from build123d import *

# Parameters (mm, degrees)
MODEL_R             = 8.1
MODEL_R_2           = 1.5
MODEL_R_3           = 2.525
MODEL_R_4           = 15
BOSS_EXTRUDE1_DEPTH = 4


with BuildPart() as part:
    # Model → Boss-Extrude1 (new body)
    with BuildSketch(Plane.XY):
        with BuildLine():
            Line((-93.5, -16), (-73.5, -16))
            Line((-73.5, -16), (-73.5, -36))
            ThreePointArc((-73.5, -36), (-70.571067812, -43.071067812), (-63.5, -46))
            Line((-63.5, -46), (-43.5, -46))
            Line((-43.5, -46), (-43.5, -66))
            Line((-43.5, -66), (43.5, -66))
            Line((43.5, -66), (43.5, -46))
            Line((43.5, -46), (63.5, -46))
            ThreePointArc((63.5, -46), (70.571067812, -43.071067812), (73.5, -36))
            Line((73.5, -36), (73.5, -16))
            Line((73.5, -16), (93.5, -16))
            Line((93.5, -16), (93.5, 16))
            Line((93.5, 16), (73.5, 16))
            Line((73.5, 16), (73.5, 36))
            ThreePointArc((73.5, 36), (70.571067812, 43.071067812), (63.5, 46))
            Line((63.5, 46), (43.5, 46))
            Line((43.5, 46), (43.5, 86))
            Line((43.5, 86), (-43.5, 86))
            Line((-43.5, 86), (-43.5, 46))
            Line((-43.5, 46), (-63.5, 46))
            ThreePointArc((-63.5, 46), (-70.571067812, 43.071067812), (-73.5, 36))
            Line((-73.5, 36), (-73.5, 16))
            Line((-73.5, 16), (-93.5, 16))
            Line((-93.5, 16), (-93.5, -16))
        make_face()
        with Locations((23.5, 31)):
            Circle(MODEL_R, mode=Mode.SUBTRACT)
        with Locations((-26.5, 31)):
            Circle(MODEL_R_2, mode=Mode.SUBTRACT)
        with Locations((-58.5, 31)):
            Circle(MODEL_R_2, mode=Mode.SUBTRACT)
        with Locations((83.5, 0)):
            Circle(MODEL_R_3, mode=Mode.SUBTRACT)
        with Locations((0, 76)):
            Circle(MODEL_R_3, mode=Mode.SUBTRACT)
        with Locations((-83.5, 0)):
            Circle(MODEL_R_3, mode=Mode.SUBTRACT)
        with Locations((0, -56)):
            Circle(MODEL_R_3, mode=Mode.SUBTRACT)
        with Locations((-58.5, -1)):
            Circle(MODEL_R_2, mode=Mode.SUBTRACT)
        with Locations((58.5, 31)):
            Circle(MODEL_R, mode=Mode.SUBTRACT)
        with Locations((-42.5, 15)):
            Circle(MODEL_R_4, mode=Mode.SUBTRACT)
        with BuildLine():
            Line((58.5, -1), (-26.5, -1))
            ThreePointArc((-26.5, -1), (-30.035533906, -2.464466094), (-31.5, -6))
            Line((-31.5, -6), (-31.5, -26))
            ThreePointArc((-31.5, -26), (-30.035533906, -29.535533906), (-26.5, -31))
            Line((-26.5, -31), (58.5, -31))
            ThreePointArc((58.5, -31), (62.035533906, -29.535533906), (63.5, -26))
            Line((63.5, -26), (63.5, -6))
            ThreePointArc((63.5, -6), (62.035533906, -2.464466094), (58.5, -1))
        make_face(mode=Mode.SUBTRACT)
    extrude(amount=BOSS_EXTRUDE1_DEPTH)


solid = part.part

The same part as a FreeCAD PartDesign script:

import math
import FreeCAD as App
import Part
import Sketcher

V = App.Vector
Q = App.Units.Quantity

doc = App.newDocument("Part")
params = doc.addObject("Spreadsheet::Sheet", "Params")
for row, (alias, value) in enumerate([
    ("sketch1_diameter", "3 mm"),
    ("sketch1_diameter2", "30 mm"),
    ("sketch1_radius", "10 mm"),
    ("sketch1_radius2", "5 mm"),
    ("sketch1_diameter3", "16.2 mm"),
    ("pad1_length", "4 mm"),
], start=1):
    params.set(f"A{row}", alias)
    params.set(f"B{row}", "=" + value)
    params.setAlias(f"B{row}", alias)

body = doc.addObject("PartDesign::Body", "Body")

sketch1 = doc.addObject("Sketcher::SketchObject", "Sketch")
body.addObject(sketch1)
sketch1.AttachmentSupport = (doc.XY_Plane, [""])
sketch1.MapMode = "FlatFace"
sketch1.addGeometry(Part.LineSegment(V(-93.5, -16, 0), V(-73.5, -16, 0)), False)
sketch1.addGeometry(Part.LineSegment(V(-73.5, -16, 0), V(-73.5, -36, 0)), False)
sketch1.addGeometry(Part.ArcOfCircle(Part.Circle(V(-63.5, -36, 0), V(0, 0, 1), 10), math.radians(180), math.radians(270)), False)
sketch1.addGeometry(Part.LineSegment(V(-63.5, -46, 0), V(-43.5, -46, 0)), False)
sketch1.addGeometry(Part.LineSegment(V(-43.5, -46, 0), V(-43.5, -66, 0)), False)
sketch1.addGeometry(Part.LineSegment(V(-43.5, -66, 0), V(43.5, -66, 0)), False)
sketch1.addGeometry(Part.LineSegment(V(43.5, -66, 0), V(43.5, -46, 0)), False)
sketch1.addGeometry(Part.LineSegment(V(43.5, -46, 0), V(63.5, -46, 0)), False)
sketch1.addGeometry(Part.ArcOfCircle(Part.Circle(V(63.5, -36, 0), V(0, 0, 1), 10), math.radians(-90), math.radians(0)), False)
sketch1.addGeometry(Part.LineSegment(V(73.5, -36, 0), V(73.5, -16, 0)), False)
sketch1.addGeometry(Part.LineSegment(V(73.5, -16, 0), V(93.5, -16, 0)), False)
sketch1.addGeometry(Part.LineSegment(V(93.5, -16, 0), V(93.5, 16, 0)), False)
sketch1.addGeometry(Part.LineSegment(V(93.5, 16, 0), V(73.5, 16, 0)), False)
sketch1.addGeometry(Part.LineSegment(V(73.5, 16, 0), V(73.5, 36, 0)), False)
sketch1.addGeometry(Part.ArcOfCircle(Part.Circle(V(63.5, 36, 0), V(0, 0, 1), 10), math.radians(0), math.radians(90)), False)
sketch1.addGeometry(Part.LineSegment(V(63.5, 46, 0), V(43.5, 46, 0)), False)
sketch1.addGeometry(Part.LineSegment(V(43.5, 46, 0), V(43.5, 86, 0)), False)
sketch1.addGeometry(Part.LineSegment(V(43.5, 86, 0), V(-43.5, 86, 0)), False)
sketch1.addGeometry(Part.LineSegment(V(-43.5, 86, 0), V(-43.5, 46, 0)), False)
sketch1.addGeometry(Part.LineSegment(V(-43.5, 46, 0), V(-63.5, 46, 0)), False)
sketch1.addGeometry(Part.ArcOfCircle(Part.Circle(V(-63.5, 36, 0), V(0, 0, 1), 10), math.radians(90), math.radians(180)), False)
sketch1.addGeometry(Part.LineSegment(V(-73.5, 36, 0), V(-73.5, 16, 0)), False)
sketch1.addGeometry(Part.LineSegment(V(-73.5, 16, 0), V(-93.5, 16, 0)), False)
sketch1.addGeometry(Part.LineSegment(V(-93.5, 16, 0), V(-93.5, -16, 0)), False)
sketch1.addGeometry(Part.Circle(V(-83.5, 0, 0), V(0, 0, 1), 2.5), False)
sketch1.addGeometry(Part.Circle(V(-58.5, -1, 0), V(0, 0, 1), 1.5), False)
sketch1.addGeometry(Part.Circle(V(0, -56, 0), V(0, 0, 1), 2.5), False)
sketch1.addGeometry(Part.LineSegment(V(-26.5, -1, 0), V(58.5, -1, 0)), False)
sketch1.addGeometry(Part.ArcOfCircle(Part.Circle(V(58.5, -6, 0), V(0, 0, 1), 5), math.radians(0), math.radians(90)), False)
sketch1.addGeometry(Part.LineSegment(V(63.5, -6, 0), V(63.5, -26, 0)), False)
sketch1.addGeometry(Part.ArcOfCircle(Part.Circle(V(58.5, -26, 0), V(0, 0, 1), 5), math.radians(-90), math.radians(0)), False)
sketch1.addGeometry(Part.LineSegment(V(58.5, -31, 0), V(-26.5, -31, 0)), False)
sketch1.addGeometry(Part.ArcOfCircle(Part.Circle(V(-26.5, -26, 0), V(0, 0, 1), 5), math.radians(180), math.radians(270)), False)
sketch1.addGeometry(Part.LineSegment(V(-31.5, -26, 0), V(-31.5, -6, 0)), False)
sketch1.addGeometry(Part.ArcOfCircle(Part.Circle(V(-26.5, -6, 0), V(0, 0, 1), 5), math.radians(90), math.radians(180)), False)
sketch1.addGeometry(Part.Circle(V(83.5, 0, 0), V(0, 0, 1), 2.5), False)
sketch1.addGeometry(Part.Circle(V(-58.5, 31, 0), V(0, 0, 1), 1.5), False)
sketch1.addGeometry(Part.Circle(V(-42.5, 15, 0), V(0, 0, 1), 15), False)
sketch1.addGeometry(Part.Circle(V(-26.5, 31, 0), V(0, 0, 1), 1.5), False)
sketch1.addGeometry(Part.Circle(V(23.5, 31, 0), V(0, 0, 1), 8.1), False)
sketch1.addGeometry(Part.Circle(V(58.5, 31, 0), V(0, 0, 1), 8.1), False)
sketch1.addGeometry(Part.Circle(V(0, 76, 0), V(0, 0, 1), 2.5), False)
sketch1.addConstraint(Sketcher.Constraint("Coincident", 0, 2, 1, 1))
sketch1.addConstraint(Sketcher.Constraint("Tangent", 1, 2, 2, 1))
sketch1.addConstraint(Sketcher.Constraint("Tangent", 2, 2, 3, 1))
sketch1.addConstraint(Sketcher.Constraint("Coincident", 3, 2, 4, 1))
sketch1.addConstraint(Sketcher.Constraint("Coincident", 4, 2, 5, 1))
sketch1.addConstraint(Sketcher.Constraint("Coincident", 5, 2, 6, 1))
sketch1.addConstraint(Sketcher.Constraint("Coincident", 6, 2, 7, 1))
sketch1.addConstraint(Sketcher.Constraint("Tangent", 7, 2, 8, 1))
sketch1.addConstraint(Sketcher.Constraint("Tangent", 8, 2, 9, 1))
sketch1.addConstraint(Sketcher.Constraint("Coincident", 9, 2, 10, 1))
sketch1.addConstraint(Sketcher.Constraint("Coincident", 10, 2, 11, 1))
sketch1.addConstraint(Sketcher.Constraint("Coincident", 11, 2, 12, 1))
sketch1.addConstraint(Sketcher.Constraint("Coincident", 12, 2, 13, 1))
sketch1.addConstraint(Sketcher.Constraint("Tangent", 13, 2, 14, 1))
sketch1.addConstraint(Sketcher.Constraint("Tangent", 14, 2, 15, 1))
sketch1.addConstraint(Sketcher.Constraint("Coincident", 15, 2, 16, 1))
sketch1.addConstraint(Sketcher.Constraint("Coincident", 16, 2, 17, 1))
sketch1.addConstraint(Sketcher.Constraint("Coincident", 17, 2, 18, 1))
sketch1.addConstraint(Sketcher.Constraint("Coincident", 18, 2, 19, 1))
sketch1.addConstraint(Sketcher.Constraint("Tangent", 19, 2, 20, 1))
sketch1.addConstraint(Sketcher.Constraint("Tangent", 20, 2, 21, 1))
sketch1.addConstraint(Sketcher.Constraint("Coincident", 21, 2, 22, 1))
sketch1.addConstraint(Sketcher.Constraint("Coincident", 22, 2, 23, 1))
sketch1.addConstraint(Sketcher.Constraint("Coincident", 23, 2, 0, 1))
sketch1.addConstraint(Sketcher.Constraint("Tangent", 27, 2, 28, 2))
sketch1.addConstraint(Sketcher.Constraint("Tangent", 28, 1, 29, 1))
sketch1.addConstraint(Sketcher.Constraint("Tangent", 29, 2, 30, 2))
sketch1.addConstraint(Sketcher.Constraint("Tangent", 30, 1, 31, 1))
sketch1.addConstraint(Sketcher.Constraint("Tangent", 31, 2, 32, 2))
sketch1.addConstraint(Sketcher.Constraint("Tangent", 32, 1, 33, 1))
sketch1.addConstraint(Sketcher.Constraint("Tangent", 33, 2, 34, 2))
sketch1.addConstraint(Sketcher.Constraint("Tangent", 34, 1, 27, 1))
sketch1.addConstraint(Sketcher.Constraint("Horizontal", 0))
sketch1.addConstraint(Sketcher.Constraint("Vertical", 1))
sketch1.addConstraint(Sketcher.Constraint("Horizontal", 3))
sketch1.addConstraint(Sketcher.Constraint("Vertical", 4))
sketch1.addConstraint(Sketcher.Constraint("Horizontal", 5))
sketch1.addConstraint(Sketcher.Constraint("Vertical", 6))
sketch1.addConstraint(Sketcher.Constraint("Horizontal", 7))
sketch1.addConstraint(Sketcher.Constraint("Vertical", 9))
sketch1.addConstraint(Sketcher.Constraint("Horizontal", 10))
sketch1.addConstraint(Sketcher.Constraint("Vertical", 11))
sketch1.addConstraint(Sketcher.Constraint("Horizontal", 12))
sketch1.addConstraint(Sketcher.Constraint("Vertical", 13))
sketch1.addConstraint(Sketcher.Constraint("Horizontal", 15))
sketch1.addConstraint(Sketcher.Constraint("Vertical", 16))
sketch1.addConstraint(Sketcher.Constraint("Horizontal", 17))
sketch1.addConstraint(Sketcher.Constraint("Vertical", 18))
sketch1.addConstraint(Sketcher.Constraint("Horizontal", 19))
sketch1.addConstraint(Sketcher.Constraint("Vertical", 21))
sketch1.addConstraint(Sketcher.Constraint("Horizontal", 22))
sketch1.addConstraint(Sketcher.Constraint("Vertical", 23))
sketch1.addConstraint(Sketcher.Constraint("Horizontal", 27))
sketch1.addConstraint(Sketcher.Constraint("Vertical", 29))
sketch1.addConstraint(Sketcher.Constraint("Horizontal", 31))
sketch1.addConstraint(Sketcher.Constraint("Vertical", 33))
sketch1.addConstraint(Sketcher.Constraint("Equal", 2, 8))
sketch1.addConstraint(Sketcher.Constraint("Equal", 8, 14))
sketch1.addConstraint(Sketcher.Constraint("Equal", 14, 20))
sketch1.addConstraint(Sketcher.Constraint("Equal", 24, 26))
sketch1.addConstraint(Sketcher.Constraint("Equal", 28, 30))
sketch1.addConstraint(Sketcher.Constraint("Equal", 30, 32))
sketch1.addConstraint(Sketcher.Constraint("Equal", 32, 34))
sketch1.addConstraint(Sketcher.Constraint("Equal", 26, 35))
sketch1.addConstraint(Sketcher.Constraint("Equal", 25, 36))
sketch1.addConstraint(Sketcher.Constraint("Equal", 36, 38))
sketch1.addConstraint(Sketcher.Constraint("Equal", 39, 40))
sketch1.addConstraint(Sketcher.Constraint("Equal", 35, 41))
sketch1.addConstraint(Sketcher.Constraint("Symmetric", 2, 3, 14, 3, -1, 1))
sketch1.addConstraint(Sketcher.Constraint("Symmetric", 8, 3, 20, 3, -1, 1))
sketch1.addConstraint(Sketcher.Constraint("Symmetric", 24, 3, 35, 3, -1, 1))
sketch1.addConstraint(Sketcher.Constraint("Symmetric", 10, 2, 22, 2, -1, 1))
sketch1.addConstraint(Sketcher.Constraint("Symmetric", 2, 3, 8, 3, -2))
sketch1.addConstraint(Sketcher.Constraint("Symmetric", 36, 3, 40, 3, -2))
sketch1.addConstraint(Sketcher.Constraint("PointOnObject", 24, 3, -1))
sketch1.addConstraint(Sketcher.Constraint("PointOnObject", 26, 3, -2))
sketch1.addConstraint(Sketcher.Constraint("PointOnObject", 41, 3, -2))
sketch1.addConstraint(Sketcher.Constraint("Horizontal", 36, 3, 38, 3))
sketch1.addConstraint(Sketcher.Constraint("Horizontal", 38, 3, 39, 3))
sketch1.addConstraint(Sketcher.Constraint("Horizontal", 0, 2, 9, 2))
sketch1.addConstraint(Sketcher.Constraint("Horizontal", 12, 2, 21, 2))
sketch1.addConstraint(Sketcher.Constraint("Horizontal", 25, 3, 27, 2))
sketch1.addConstraint(Sketcher.Constraint("Vertical", 25, 3, 36, 3))
sketch1.addConstraint(Sketcher.Constraint("Vertical", 34, 3, 38, 3))
sketch1.addConstraint(Sketcher.Constraint("Vertical", 30, 3, 40, 3))
sketch1.addConstraint(Sketcher.Constraint("Vertical", 6, 2, 15, 2))
sketch1.addConstraint(Sketcher.Constraint("Vertical", 4, 2, 17, 2))
sketch1.addConstraint(Sketcher.Constraint("Vertical", 14, 2, 28, 1))
sketch1.addConstraint(Sketcher.Constraint("Equal", 0, 3))
sketch1.addConstraint(Sketcher.Constraint("Equal", 3, 7))
sketch1.addConstraint(Sketcher.Constraint("Equal", 22, 1))
sketch1.addConstraint(Sketcher.Constraint("Equal", 1, 4))
sketch1.addConstraint(Sketcher.Constraint("Equal", 21, 29))
sketch1.addConstraint(Sketcher.Constraint("Diameter", 25, Q("3 mm")))
sketch1.addConstraint(Sketcher.Constraint("Diameter", 37, Q("30 mm")))
sketch1.addConstraint(Sketcher.Constraint("Radius", 2, Q("10 mm")))
sketch1.addConstraint(Sketcher.Constraint("Radius", 28, Q("5 mm")))
sketch1.addConstraint(Sketcher.Constraint("Diameter", 39, Q("16.2 mm")))
sketch1.addConstraint(Sketcher.Constraint("Diameter", 24, Q("5.05 mm")))
sketch1.addConstraint(Sketcher.Constraint("DistanceX", 0, 1, 0, 2, Q("20 mm")))
sketch1.addConstraint(Sketcher.Constraint("DistanceX", 5, 1, 5, 2, Q("87 mm")))
sketch1.addConstraint(Sketcher.Constraint("DistanceX", 27, 1, 27, 2, Q("85 mm")))
sketch1.addConstraint(Sketcher.Constraint("DistanceY", 11, 1, 11, 2, Q("32 mm")))
sketch1.addConstraint(Sketcher.Constraint("DistanceY", 16, 1, 16, 2, Q("40 mm")))
sketch1.addConstraint(Sketcher.Constraint("DistanceY", 25, 3, -1, 1, Q("1 mm")))
sketch1.addConstraint(Sketcher.Constraint("DistanceY", 26, 3, -1, 1, Q("56 mm")))
sketch1.addConstraint(Sketcher.Constraint("DistanceY", -1, 1, 36, 3, Q("31 mm")))
sketch1.addConstraint(Sketcher.Constraint("DistanceY", -1, 1, 37, 3, Q("15 mm")))
sketch1.addConstraint(Sketcher.Constraint("DistanceY", -1, 1, 41, 3, Q("76 mm")))
sketch1.addConstraint(Sketcher.Constraint("DistanceX", 24, 3, 2, 3, Q("20 mm")))
sketch1.addConstraint(Sketcher.Constraint("DistanceX", 25, 3, 37, 3, Q("16 mm")))
sketch1.addConstraint(Sketcher.Constraint("DistanceX", 39, 3, 14, 3, Q("40 mm")))
sketch1.setExpression("Constraints[93]", "Params.sketch1_diameter")
sketch1.setExpression("Constraints[94]", "Params.sketch1_diameter2")
sketch1.setExpression("Constraints[95]", "Params.sketch1_radius")
sketch1.setExpression("Constraints[96]", "Params.sketch1_radius2")
sketch1.setExpression("Constraints[97]", "Params.sketch1_diameter3")
pad1 = doc.addObject("PartDesign::Pad", "Pad")
body.addObject(pad1)
pad1.Profile = sketch1
pad1.setExpression("Length", "Params.pad1_length")

doc.recompute()
